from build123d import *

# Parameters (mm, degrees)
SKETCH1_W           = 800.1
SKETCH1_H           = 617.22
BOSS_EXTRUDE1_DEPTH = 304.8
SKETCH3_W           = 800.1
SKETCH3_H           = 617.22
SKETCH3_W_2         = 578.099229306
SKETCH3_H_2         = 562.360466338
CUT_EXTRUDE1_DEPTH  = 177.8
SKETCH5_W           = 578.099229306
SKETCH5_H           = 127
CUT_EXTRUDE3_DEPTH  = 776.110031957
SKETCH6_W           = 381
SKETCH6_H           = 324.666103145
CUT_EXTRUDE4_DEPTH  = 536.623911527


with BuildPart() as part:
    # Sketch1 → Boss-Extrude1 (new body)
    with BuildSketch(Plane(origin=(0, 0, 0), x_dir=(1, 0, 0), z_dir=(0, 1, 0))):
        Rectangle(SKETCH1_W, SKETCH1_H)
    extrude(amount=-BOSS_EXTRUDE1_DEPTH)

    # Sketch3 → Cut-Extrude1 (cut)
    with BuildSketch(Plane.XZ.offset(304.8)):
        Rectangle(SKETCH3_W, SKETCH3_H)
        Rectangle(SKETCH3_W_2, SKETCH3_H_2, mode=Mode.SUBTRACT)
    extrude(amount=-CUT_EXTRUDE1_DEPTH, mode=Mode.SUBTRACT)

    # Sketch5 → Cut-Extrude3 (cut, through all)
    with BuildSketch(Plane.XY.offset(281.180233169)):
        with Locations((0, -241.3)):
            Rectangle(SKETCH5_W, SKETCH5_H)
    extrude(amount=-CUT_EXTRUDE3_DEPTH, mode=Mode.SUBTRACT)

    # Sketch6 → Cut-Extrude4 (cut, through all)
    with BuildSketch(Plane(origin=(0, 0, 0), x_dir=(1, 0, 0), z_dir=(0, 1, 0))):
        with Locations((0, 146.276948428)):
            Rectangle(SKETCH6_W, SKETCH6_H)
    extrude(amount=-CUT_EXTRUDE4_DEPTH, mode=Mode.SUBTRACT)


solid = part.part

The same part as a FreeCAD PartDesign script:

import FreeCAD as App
import Part
import Sketcher
Q = App.Units.Quantity


def add_polygon(sketch, points):
    """Adds a closed chain of lines whose ends are joined by coincident constraints."""
    first, n = sketch.GeometryCount, len(points)
    for a, b in zip(points, points[1:] + points[:1]):
        sketch.addGeometry(Part.LineSegment(App.Vector(*a, 0), App.Vector(*b, 0)), False)
    for i in range(n):
        sketch.addConstraint(Sketcher.Constraint("Coincident", first + i, 2, first + (i + 1) % n, 1))

doc = App.newDocument("Part")
body = doc.addObject("PartDesign::Body", "Body")

# Sketch on XZ plane
sketch1 = body.newObject("Sketcher::SketchObject", "Sketch")
sketch1.AttachmentSupport = (doc.getObject("XZ_Plane"), [""])
sketch1.MapMode = "FlatFace"
add_polygon(sketch1, [(-400, -309), (-400, 309), (400, 309), (400, -309)])  # lines 0-3
sketch1.addConstraint([
    Sketcher.Constraint("Vertical", 0),
    Sketcher.Constraint("Horizontal", 1),
    Sketcher.Constraint("Vertical", 2),
    Sketcher.Constraint("Horizontal", 3),
    Sketcher.Constraint("Symmetric", 0, 2, 2, 2, -1, 1),
    Sketcher.Constraint("DistanceX", 1, 1, 1, 2, Q("31.5 in")),
    Sketcher.Constraint("DistanceY", 0, 1, 0, 2, Q("24.3 in")),
])
pad1 = body.newObject("PartDesign::Pad", "Pad")
pad1.Profile = sketch1
pad1.Length = Q("12 in")

# Sketch on XZ plane
sketch2 = body.newObject("Sketcher::SketchObject", "Sketch001")
sketch2.AttachmentSupport = (doc.getObject("XZ_Plane"), [""])
sketch2.MapMode = "FlatFace"
sketch2.AttachmentOffset = App.Placement(App.Vector(0, 0, 12 * 25.4), App.Rotation())
add_polygon(sketch2, [(-400, 309), (-400, -309), (400, -309), (400, 309)])  # lines 0-3
add_polygon(sketch2, [(289, -281), (-289, -281), (-289, 281), (289, 281)])  # lines 4-7
sketch2.addConstraint([
    Sketcher.Constraint("Vertical", 0),
    Sketcher.Constraint("Horizontal", 1),
    Sketcher.Constraint("Vertical", 2),
    Sketcher.Constraint("Horizontal", 3),
    Sketcher.Constraint("Horizontal", 4),
    Sketcher.Constraint("Vertical", 5),
    Sketcher.Constraint("Horizontal", 6),
    Sketcher.Constraint("Vertical", 7),
    Sketcher.Constraint("Symmetric", 0, 2, 2, 2, -1, 1),
    Sketcher.Constraint("Symmetric", 4, 2, 6, 2, -1, 1),
    Sketcher.Constraint("DistanceX", 1, 1, 1, 2, Q("31.5 in")),
    Sketcher.Constraint("DistanceY", 0, 2, 0, 1, Q("24.3 in")),
    Sketcher.Constraint("DistanceX", 4, 2, 4, 1, 578.099229),
    Sketcher.Constraint("DistanceY", 5, 1, 5, 2, 562.360466),
])
pocket1 = body.newObject("PartDesign::Pocket", "Pocket")
pocket1.Profile = sketch2
pocket1.Length = Q("7 in")

# Sketch on XY plane
sketch3 = body.newObject("Sketcher::SketchObject", "Sketch002")
sketch3.AttachmentSupport = (doc.getObject("XY_Plane"), [""])
sketch3.MapMode = "FlatFace"
sketch3.AttachmentOffset = App.Placement(App.Vector(0, 0, 281.180233), App.Rotation())
add_polygon(sketch3, [(-289, -178), (-289, -305), (289, -305), (289, -178)])  # lines 0-3
sketch3.addConstraint([
    Sketcher.Constraint("Vertical", 0),
    Sketcher.Constraint("Horizontal", 1),
    Sketcher.Constraint("Vertical", 2),
    Sketcher.Constraint("Horizontal", 3),
    Sketcher.Constraint("DistanceY", 0, 2, 0, 1, Q("5 in")),
    Sketcher.Constraint("DistanceY", 0, 2, -1, 1, Q("12 in")),
    Sketcher.Constraint("DistanceX", 1, 1, 1, 2, 578.099229),
    Sketcher.Constraint("DistanceX", 0, 2, -1, 1, 289.049615),
])
pocket2 = body.newObject("PartDesign::Pocket", "Pocket001")
pocket2.Profile = sketch3
pocket2.Type = "ThroughAll"

# Sketch on XZ plane
sketch4 = body.newObject("Sketcher::SketchObject", "Sketch003")
sketch4.AttachmentSupport = (doc.getObject("XZ_Plane"), [""])
sketch4.MapMode = "FlatFace"
add_polygon(sketch4, [(-190, -309), (-190, 16), (190, 16), (190, -309)])  # lines 0-3
sketch4.addConstraint([
    Sketcher.Constraint("Vertical", 0),
    Sketcher.Constraint("Horizontal", 1),
    Sketcher.Constraint("Vertical", 2),
    Sketcher.Constraint("Horizontal", 3),
    Sketcher.Constraint("DistanceX", 1, 1, 1, 2, Q("15 in")),
    Sketcher.Constraint("DistanceX", 0, 2, -1, 1, Q("7.5 in")),
    Sketcher.Constraint("DistanceY", 2, 2, -1, 1, Q("12.15 in")),
    Sketcher.Constraint("DistanceY", 0, 1, 0, 2, 324.666103),
])
pocket3 = body.newObject("PartDesign::Pocket", "Pocket002")
pocket3.Profile = sketch4
pocket3.Type = "ThroughAll"
pocket3.Reversed = True

doc.recompute()
